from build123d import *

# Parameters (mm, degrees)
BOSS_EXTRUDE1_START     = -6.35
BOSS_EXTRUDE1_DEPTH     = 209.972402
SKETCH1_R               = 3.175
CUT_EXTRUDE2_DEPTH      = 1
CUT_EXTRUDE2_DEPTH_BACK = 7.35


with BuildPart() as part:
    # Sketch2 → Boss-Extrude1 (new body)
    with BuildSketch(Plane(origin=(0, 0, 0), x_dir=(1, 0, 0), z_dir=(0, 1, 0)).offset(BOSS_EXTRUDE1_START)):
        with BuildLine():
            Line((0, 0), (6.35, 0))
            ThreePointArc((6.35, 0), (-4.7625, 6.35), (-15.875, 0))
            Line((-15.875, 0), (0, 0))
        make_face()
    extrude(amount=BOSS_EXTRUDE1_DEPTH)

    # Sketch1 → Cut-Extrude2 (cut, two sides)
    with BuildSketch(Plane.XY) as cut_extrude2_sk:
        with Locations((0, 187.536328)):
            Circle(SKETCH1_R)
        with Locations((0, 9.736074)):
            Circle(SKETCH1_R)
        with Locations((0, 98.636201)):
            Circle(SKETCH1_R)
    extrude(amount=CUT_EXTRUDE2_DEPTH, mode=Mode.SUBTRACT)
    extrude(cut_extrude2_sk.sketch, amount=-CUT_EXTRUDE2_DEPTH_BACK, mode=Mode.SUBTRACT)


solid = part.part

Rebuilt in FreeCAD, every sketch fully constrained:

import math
import FreeCAD as App
import Part
import Sketcher
from FreeCAD import Vector
Q = App.Units.Quantity

doc = App.newDocument("Part")
body = doc.addObject("PartDesign::Body", "Body")

# Sketch on XZ plane
sketch1 = doc.addObject("Sketcher::SketchObject", "Sketch")
body.addObject(sketch1)
sketch1.AttachmentSupport = (doc.XZ_Plane, [""])
sketch1.MapMode = "FlatFace"
sketch1.AttachmentOffset = App.Placement(Vector(0, 0, 0.25 * 25.4), App.Rotation())
sketch1.addGeometry(Part.ArcOfCircle(Part.Circle(Vector(-5, 7, 0), Vector(0, 0, 1), 13), math.radians(-149), math.radians(-31)), False)
sketch1.addGeometry(Part.LineSegment(Vector(-16, 0, 0), Vector(6, 0, 0)), False)
sketch1.addConstraint(Sketcher.Constraint("Coincident", 0, 1, 1, 1))
sketch1.addConstraint(Sketcher.Constraint("Coincident", 1, 2, 0, 2))
sketch1.addConstraint(Sketcher.Constraint("Horizontal", 1))
sketch1.addConstraint(Sketcher.Constraint("PointOnObject", 0, 1, -1))
sketch1.addConstraint(Sketcher.Constraint("DistanceX", 1, 1, 1, 2, Q("0.875 in")))
sketch1.addConstraint(Sketcher.Constraint("DistanceX", -1, 1, 1, 2, Q("0.25 in")))
sketch1.addConstraint(Sketcher.Constraint("Radius", 0, 12.898438))
pad1 = doc.addObject("PartDesign::Pad", "Pad")
body.addObject(pad1)
pad1.Profile = sketch1
pad1.Length = 209.972402
pad1.Reversed = True

# Sketch on XY plane
sketch2 = doc.addObject("Sketcher::SketchObject", "Sketch001")
body.addObject(sketch2)
sketch2.AttachmentSupport = (doc.XY_Plane, [""])
sketch2.MapMode = "FlatFace"
sketch2.addGeometry(Part.Circle(Vector(0, 187.5, 0), Vector(0, 0, 1), 3.2), False)
sketch2.addGeometry(Part.Circle(Vector(0, 9.7, 0), Vector(0, 0, 1), 3.2), False)
sketch2.addGeometry(Part.Circle(Vector(0, 98.6, 0), Vector(0, 0, 1), 3.2), False)
sketch2.addConstraint(Sketcher.Constraint("Equal", 0, 1))
sketch2.addConstraint(Sketcher.Constraint("Equal", 1, 2))
sketch2.addConstraint(Sketcher.Constraint("PointOnObject", 0, 3, -2))
sketch2.addConstraint(Sketcher.Constraint("PointOnObject", 1, 3, -2))
sketch2.addConstraint(Sketcher.Constraint("PointOnObject", 2, 3, -2))
sketch2.addConstraint(Sketcher.Constraint("Diameter", 0, Q("0.25 in")))
sketch2.addConstraint(Sketcher.Constraint("DistanceY", -1, 1, 2, 3, 98.636201))
sketch2.addConstraint(Sketcher.Constraint("DistanceY", -1, 1, 0, 3, 187.536328))
sketch2.addConstraint(Sketcher.Constraint("DistanceY", -1, 1, 1, 3, 9.736074))
pocket1 = doc.addObject("PartDesign::Pocket", "Pocket")
body.addObject(pocket1)
pocket1.Profile = sketch2
pocket1.Type = "ThroughAll"
pocket1.Midplane = True

doc.recompute()
